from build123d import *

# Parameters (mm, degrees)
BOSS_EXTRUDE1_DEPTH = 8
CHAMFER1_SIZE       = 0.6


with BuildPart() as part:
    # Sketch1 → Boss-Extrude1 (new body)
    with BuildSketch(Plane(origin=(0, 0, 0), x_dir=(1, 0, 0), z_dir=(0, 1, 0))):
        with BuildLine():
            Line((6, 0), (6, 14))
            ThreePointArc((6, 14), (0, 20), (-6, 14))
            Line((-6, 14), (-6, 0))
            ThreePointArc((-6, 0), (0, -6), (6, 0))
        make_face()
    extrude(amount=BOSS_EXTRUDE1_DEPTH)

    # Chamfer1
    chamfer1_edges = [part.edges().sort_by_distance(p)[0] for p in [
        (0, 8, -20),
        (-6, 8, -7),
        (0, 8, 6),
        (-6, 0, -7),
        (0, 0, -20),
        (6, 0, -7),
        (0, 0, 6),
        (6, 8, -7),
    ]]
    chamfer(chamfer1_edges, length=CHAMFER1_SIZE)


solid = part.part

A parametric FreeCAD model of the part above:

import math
import FreeCAD as App
import Part
import Sketcher
from FreeCAD import Vector


def edges_at(feature, points):
    """Names of the edges that pass closest to the given points."""
    edges = feature.Shape.Edges
    near = lambda p: min(range(len(edges)), key=lambda i: edges[i].distToShape(Part.Vertex(*p))[0])
    return sorted({f"Edge{near(p) + 1}" for p in points})

doc = App.newDocument("Part")
params = doc.addObject("Spreadsheet::Sheet", "Params")
for row, (alias, value) in enumerate([
    ("sketch1_radius", "6 mm"),
    ("sketch1_height", "14 mm"),
    ("pad1_length", "8 mm"),
    ("chamfer_size", "0.6 mm"),
], start=1):
    params.set(f"A{row}", alias)
    params.set(f"B{row}", "=" + value)
    params.setAlias(f"B{row}", alias)

body = doc.addObject("PartDesign::Body", "Body")

# Sketch on XZ plane
sketch1 = body.newObject("Sketcher::SketchObject", "Sketch")
sketch1.AttachmentSupport = (doc.getObject("XZ_Plane"), [""])
sketch1.MapMode = "FlatFace"
sketch1.addGeometry([
    Part.LineSegment(Vector(6, 0, 0), Vector(6, -14, 0)),
    Part.ArcOfCircle(Part.Circle(Vector(0, -14, 0), Vector(0, 0, 1), 6), math.radians(180), math.radians(360)),
    Part.LineSegment(Vector(-6, -14, 0), Vector(-6, 0, 0)),
    Part.ArcOfCircle(Part.Circle(Vector(0, 0, 0), Vector(0, 0, 1), 6), math.radians(0), math.radians(180)),
], False)
sketch1.addConstraint([
    Sketcher.Constraint("Tangent", 0, 2, 1, 2),
    Sketcher.Constraint("Tangent", 1, 1, 2, 1),
    Sketcher.Constraint("Tangent", 2, 2, 3, 2),
    Sketcher.Constraint("Tangent", 3, 1, 0, 1),
    Sketcher.Constraint("Vertical", 0),
    Sketcher.Constraint("Vertical", 2),
    Sketcher.Constraint("Coincident", 3, 3, -1, 1),
    Sketcher.Constraint("Radius", 1, 6.0),
    Sketcher.Constraint("DistanceY", 0, 2, 0, 1, 14.0),
])
sketch1.setExpression("Constraints[7]", "Params.sketch1_radius")
sketch1.setExpression("Constraints[8]", "Params.sketch1_height")
pad1 = body.newObject("PartDesign::Pad", "Pad")
pad1.Profile = sketch1
pad1.setExpression("Length", "Params.pad1_length")
pad1.Reversed = True
doc.recompute()

chamfer = body.newObject("PartDesign::Chamfer", "Chamfer")
chamfer.Base = (pad1, edges_at(pad1, [
    (0, 8, -20),
    (-6, 8, -7),
    (0, 8, 6),
    (-6, 0, -7),
    (0, 0, -20),
    (6, 0, -7),
    (0, 0, 6),
    (6, 8, -7),
]))
chamfer.setExpression("Size", "Params.chamfer_size")

doc.recompute()
